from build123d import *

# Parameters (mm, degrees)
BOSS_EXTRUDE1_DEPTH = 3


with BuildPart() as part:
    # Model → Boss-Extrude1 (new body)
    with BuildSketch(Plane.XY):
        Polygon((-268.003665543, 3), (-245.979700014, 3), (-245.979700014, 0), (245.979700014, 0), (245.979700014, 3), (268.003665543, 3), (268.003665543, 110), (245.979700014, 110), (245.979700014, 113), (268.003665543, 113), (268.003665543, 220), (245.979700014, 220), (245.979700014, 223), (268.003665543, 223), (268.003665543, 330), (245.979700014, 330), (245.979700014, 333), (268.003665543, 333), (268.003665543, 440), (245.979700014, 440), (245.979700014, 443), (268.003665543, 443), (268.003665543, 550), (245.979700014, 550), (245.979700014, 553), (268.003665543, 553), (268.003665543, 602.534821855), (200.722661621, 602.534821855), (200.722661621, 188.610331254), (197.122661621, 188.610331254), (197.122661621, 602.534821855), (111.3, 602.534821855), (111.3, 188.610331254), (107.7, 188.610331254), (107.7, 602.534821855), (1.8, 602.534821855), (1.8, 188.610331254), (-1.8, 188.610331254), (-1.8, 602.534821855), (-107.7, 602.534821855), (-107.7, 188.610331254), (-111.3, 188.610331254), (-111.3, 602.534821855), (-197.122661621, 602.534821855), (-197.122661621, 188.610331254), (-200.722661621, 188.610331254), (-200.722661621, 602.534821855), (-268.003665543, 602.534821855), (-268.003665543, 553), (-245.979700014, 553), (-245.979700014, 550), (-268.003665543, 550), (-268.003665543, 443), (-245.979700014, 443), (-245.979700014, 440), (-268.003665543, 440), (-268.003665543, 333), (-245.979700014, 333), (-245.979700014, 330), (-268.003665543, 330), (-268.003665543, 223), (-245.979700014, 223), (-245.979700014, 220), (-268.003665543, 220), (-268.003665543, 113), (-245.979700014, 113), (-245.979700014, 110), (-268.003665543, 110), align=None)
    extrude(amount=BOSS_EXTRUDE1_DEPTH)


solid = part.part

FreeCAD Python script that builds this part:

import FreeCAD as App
import Part
import Sketcher

V = App.Vector
Q = App.Units.Quantity

doc = App.newDocument("Part")
body = doc.addObject("PartDesign::Body", "Body")

# Sketch on XY plane
sketch1 = body.newObject("Sketcher::SketchObject", "Sketch")
sketch1.AttachmentSupport = (doc.getObject("XY_Plane"), [""])
sketch1.MapMode = "FlatFace"
sketch1.addGeometry([
    Part.LineSegment(V(-268, 3, 0), V(-246, 3, 0)),  # 0
    Part.LineSegment(V(-246, 3, 0), V(-246, 0, 0)),  # 1
    Part.LineSegment(V(-246, 0, 0), V(246, 0, 0)),  # 2
    Part.LineSegment(V(246, 0, 0), V(246, 3, 0)),  # 3
    Part.LineSegment(V(246, 3, 0), V(268, 3, 0)),  # 4
    Part.LineSegment(V(268, 3, 0), V(268, 110, 0)),  # 5
    Part.LineSegment(V(268, 110, 0), V(246, 110, 0)),  # 6
    Part.LineSegment(V(246, 110, 0), V(246, 113, 0)),  # 7
    Part.LineSegment(V(246, 113, 0), V(268, 113, 0)),  # 8
    Part.LineSegment(V(268, 113, 0), V(268, 220, 0)),  # 9
    Part.LineSegment(V(268, 220, 0), V(246, 220, 0)),  # 10
    Part.LineSegment(V(246, 220, 0), V(246, 223, 0)),  # 11
    Part.LineSegment(V(246, 223, 0), V(268, 223, 0)),  # 12
    Part.LineSegment(V(268, 223, 0), V(268, 330, 0)),  # 13
    Part.LineSegment(V(268, 330, 0), V(246, 330, 0)),  # 14
    Part.LineSegment(V(246, 330, 0), V(246, 333, 0)),  # 15
    Part.LineSegment(V(246, 333, 0), V(268, 333, 0)),  # 16
    Part.LineSegment(V(268, 333, 0), V(268, 440, 0)),  # 17
    Part.LineSegment(V(268, 440, 0), V(246, 440, 0)),  # 18
    Part.LineSegment(V(246, 440, 0), V(246, 443, 0)),  # 19
    Part.LineSegment(V(246, 443, 0), V(268, 443, 0)),  # 20
    Part.LineSegment(V(268, 443, 0), V(268, 550, 0)),  # 21
    Part.LineSegment(V(268, 550, 0), V(246, 550, 0)),  # 22
    Part.LineSegment(V(246, 550, 0), V(246, 553, 0)),  # 23
    Part.LineSegment(V(246, 553, 0), V(268, 553, 0)),  # 24
    Part.LineSegment(V(268, 553, 0), V(268, 602.5, 0)),  # 25
    Part.LineSegment(V(268, 602.5, 0), V(200.7, 602.5, 0)),  # 26
    Part.LineSegment(V(200.7, 602.5, 0), V(200.7, 188.6, 0)),  # 27
    Part.LineSegment(V(200.7, 188.6, 0), V(197.1, 188.6, 0)),  # 28
    Part.LineSegment(V(197.1, 188.6, 0), V(197.1, 602.5, 0)),  # 29
    Part.LineSegment(V(197.1, 602.5, 0), V(111.3, 602.5, 0)),  # 30
    Part.LineSegment(V(111.3, 602.5, 0), V(111.3, 188.6, 0)),  # 31
    Part.LineSegment(V(111.3, 188.6, 0), V(107.7, 188.6, 0)),  # 32
    Part.LineSegment(V(107.7, 188.6, 0), V(107.7, 602.5, 0)),  # 33
    Part.LineSegment(V(107.7, 602.5, 0), V(1.8, 602.5, 0)),  # 34
    Part.LineSegment(V(1.8, 602.5, 0), V(1.8, 188.6, 0)),  # 35
    Part.LineSegment(V(1.8, 188.6, 0), V(-1.8, 188.6, 0)),  # 36
    Part.LineSegment(V(-1.8, 188.6, 0), V(-1.8, 602.5, 0)),  # 37
    Part.LineSegment(V(-1.8, 602.5, 0), V(-107.7, 602.5, 0)),  # 38
    Part.LineSegment(V(-107.7, 602.5, 0), V(-107.7, 188.6, 0)),  # 39
    Part.LineSegment(V(-107.7, 188.6, 0), V(-111.3, 188.6, 0)),  # 40
    Part.LineSegment(V(-111.3, 188.6, 0), V(-111.3, 602.5, 0)),  # 41
    Part.LineSegment(V(-111.3, 602.5, 0), V(-197.1, 602.5, 0)),  # 42
    Part.LineSegment(V(-197.1, 602.5, 0), V(-197.1, 188.6, 0)),  # 43
    Part.LineSegment(V(-197.1, 188.6, 0), V(-200.7, 188.6, 0)),  # 44
    Part.LineSegment(V(-200.7, 188.6, 0), V(-200.7, 602.5, 0)),  # 45
    Part.LineSegment(V(-200.7, 602.5, 0), V(-268, 602.5, 0)),  # 46
    Part.LineSegment(V(-268, 602.5, 0), V(-268, 553, 0)),  # 47
    Part.LineSegment(V(-268, 553, 0), V(-246, 553, 0)),  # 48
    Part.LineSegment(V(-246, 553, 0), V(-246, 550, 0)),  # 49
    Part.LineSegment(V(-246, 550, 0), V(-268, 550, 0)),  # 50
    Part.LineSegment(V(-268, 550, 0), V(-268, 443, 0)),  # 51
    Part.LineSegment(V(-268, 443, 0), V(-246, 443, 0)),  # 52
    Part.LineSegment(V(-246, 443, 0), V(-246, 440, 0)),  # 53
    Part.LineSegment(V(-246, 440, 0), V(-268, 440, 0)),  # 54
    Part.LineSegment(V(-268, 440, 0), V(-268, 333, 0)),  # 55
    Part.LineSegment(V(-268, 333, 0), V(-246, 333, 0)),  # 56
    Part.LineSegment(V(-246, 333, 0), V(-246, 330, 0)),  # 57
    Part.LineSegment(V(-246, 330, 0), V(-268, 330, 0)),  # 58
    Part.LineSegment(V(-268, 330, 0), V(-268, 223, 0)),  # 59
    Part.LineSegment(V(-268, 223, 0), V(-246, 223, 0)),  # 60
    Part.LineSegment(V(-246, 223, 0), V(-246, 220, 0)),  # 61
    Part.LineSegment(V(-246, 220, 0), V(-268, 220, 0)),  # 62
    Part.LineSegment(V(-268, 220, 0), V(-268, 113, 0)),  # 63
    Part.LineSegment(V(-268, 113, 0), V(-246, 113, 0)),  # 64
    Part.LineSegment(V(-246, 113, 0), V(-246, 110, 0)),  # 65
    Part.LineSegment(V(-246, 110, 0), V(-268, 110, 0)),  # 66
    Part.LineSegment(V(-268, 110, 0), V(-268, 3, 0)),  # 67
], False)
sketch1.addConstraint([
    Sketcher.Constraint("Coincident", 0, 2, 1, 1),
    Sketcher.Constraint("Coincident", 1, 2, 2, 1),
    Sketcher.Constraint("Coincident", 2, 2, 3, 1),
    Sketcher.Constraint("Coincident", 3, 2, 4, 1),
    Sketcher.Constraint("Coincident", 4, 2, 5, 1),
    Sketcher.Constraint("Coincident", 5, 2, 6, 1),
    Sketcher.Constraint("Coincident", 6, 2, 7, 1),
    Sketcher.Constraint("Coincident", 7, 2, 8, 1),
    Sketcher.Constraint("Coincident", 8, 2, 9, 1),
    Sketcher.Constraint("Coincident", 9, 2, 10, 1),
    Sketcher.Constraint("Coincident", 10, 2, 11, 1),
    Sketcher.Constraint("Coincident", 11, 2, 12, 1),
    Sketcher.Constraint("Coincident", 12, 2, 13, 1),
    Sketcher.Constraint("Coincident", 13, 2, 14, 1),
    Sketcher.Constraint("Coincident", 14, 2, 15, 1),
    Sketcher.Constraint("Coincident", 15, 2, 16, 1),
    Sketcher.Constraint("Coincident", 16, 2, 17, 1),
    Sketcher.Constraint("Coincident", 17, 2, 18, 1),
    Sketcher.Constraint("Coincident", 18, 2, 19, 1),
    Sketcher.Constraint("Coincident", 19, 2, 20, 1),
    Sketcher.Constraint("Coincident", 20, 2, 21, 1),
    Sketcher.Constraint("Coincident", 21, 2, 22, 1),
    Sketcher.Constraint("Coincident", 22, 2, 23, 1),
    Sketcher.Constraint("Coincident", 23, 2, 24, 1),
    Sketcher.Constraint("Coincident", 24, 2, 25, 1),
    Sketcher.Constraint("Coincident", 25, 2, 26, 1),
    Sketcher.Constraint("Coincident", 26, 2, 27, 1),
    Sketcher.Constraint("Coincident", 27, 2, 28, 1),
    Sketcher.Constraint("Coincident", 28, 2, 29, 1),
    Sketcher.Constraint("Coincident", 29, 2, 30, 1),
    Sketcher.Constraint("Coincident", 30, 2, 31, 1),
    Sketcher.Constraint("Coincident", 31, 2, 32, 1),
    Sketcher.Constraint("Coincident", 32, 2, 33, 1),
    Sketcher.Constraint("Coincident", 33, 2, 34, 1),
    Sketcher.Constraint("Coincident", 34, 2, 35, 1),
    Sketcher.Constraint("Coincident", 35, 2, 36, 1),
    Sketcher.Constraint("Coincident", 36, 2, 37, 1),
    Sketcher.Constraint("Coincident", 37, 2, 38, 1),
    Sketcher.Constraint("Coincident", 38, 2, 39, 1),
    Sketcher.Constraint("Coincident", 39, 2, 40, 1),
    Sketcher.Constraint("Coincident", 40, 2, 41, 1),
    Sketcher.Constraint("Coincident", 41, 2, 42, 1),
    Sketcher.Constraint("Coincident", 42, 2, 43, 1),
    Sketcher.Constraint("Coincident", 43, 2, 44, 1),
    Sketcher.Constraint("Coincident", 44, 2, 45, 1),
    Sketcher.Constraint("Coincident", 45, 2, 46, 1),
    Sketcher.Constraint("Coincident", 46, 2, 47, 1),
    Sketcher.Constraint("Coincident", 47, 2, 48, 1),
    Sketcher.Constraint("Coincident", 48, 2, 49, 1),
    Sketcher.Constraint("Coincident", 49, 2, 50, 1),
    Sketcher.Constraint("Coincident", 50, 2, 51, 1),
    Sketcher.Constraint("Coincident", 51, 2, 52, 1),
    Sketcher.Constraint("Coincident", 52, 2, 53, 1),
    Sketcher.Constraint("Coincident", 53, 2, 54, 1),
    Sketcher.Constraint("Coincident", 54, 2, 55, 1),
    Sketcher.Constraint("Coincident", 55, 2, 56, 1),
    Sketcher.Constraint("Coincident", 56, 2, 57, 1),
    Sketcher.Constraint("Coincident", 57, 2, 58, 1),
    Sketcher.Constraint("Coincident", 58, 2, 59, 1),
    Sketcher.Constraint("Coincident", 59, 2, 60, 1),
    Sketcher.Constraint("Coincident", 60, 2, 61, 1),
    Sketcher.Constraint("Coincident", 61, 2, 62, 1),
    Sketcher.Constraint("Coincident", 62, 2, 63, 1),
    Sketcher.Constraint("Coincident", 63, 2, 64, 1),
    Sketcher.Constraint("Coincident", 64, 2, 65, 1),
    Sketcher.Constraint("Coincident", 65, 2, 66, 1),
    Sketcher.Constraint("Coincident", 66, 2, 67, 1),
    Sketcher.Constraint("Coincident", 67, 2, 0, 1),
    Sketcher.Constraint("Horizontal", 0),
    Sketcher.Constraint("Vertical", 1),
    Sketcher.Constraint("Horizontal", 2),
    Sketcher.Constraint("Vertical", 3),
    Sketcher.Constraint("Horizontal", 4),
    Sketcher.Constraint("Vertical", 5),
    Sketcher.Constraint("Horizontal", 6),
    Sketcher.Constraint("Vertical", 7),
    Sketcher.Constraint("Horizontal", 8),
    Sketcher.Constraint("Vertical", 9),
    Sketcher.Constraint("Horizontal", 10),
    Sketcher.Constraint("Vertical", 11),
    Sketcher.Constraint("Horizontal", 12),
    Sketcher.Constraint("Vertical", 13),
    Sketcher.Constraint("Horizontal", 14),
    Sketcher.Constraint("Vertical", 15),
    Sketcher.Constraint("Horizontal", 16),
    Sketcher.Constraint("Vertical", 17),
    Sketcher.Constraint("Horizontal", 18),
    Sketcher.Constraint("Vertical", 19),
    Sketcher.Constraint("Horizontal", 20),
    Sketcher.Constraint("Vertical", 21),
    Sketcher.Constraint("Horizontal", 22),
    Sketcher.Constraint("Vertical", 23),
    Sketcher.Constraint("Horizontal", 24),
    Sketcher.Constraint("Vertical", 25),
    Sketcher.Constraint("Horizontal", 26),
    Sketcher.Constraint("Vertical", 27),
    Sketcher.Constraint("Horizontal", 28),
    Sketcher.Constraint("Vertical", 29),
    Sketcher.Constraint("Horizontal", 30),
    Sketcher.Constraint("Vertical", 31),
    Sketcher.Constraint("Horizontal", 32),
    Sketcher.Constraint("Vertical", 33),
    Sketcher.Constraint("Horizontal", 34),
    Sketcher.Constraint("Vertical", 35),
    Sketcher.Constraint("Horizontal", 36),
    Sketcher.Constraint("Vertical", 37),
    Sketcher.Constraint("Horizontal", 38),
    Sketcher.Constraint("Vertical", 39),
    Sketcher.Constraint("Horizontal", 40),
    Sketcher.Constraint("Vertical", 41),
    Sketcher.Constraint("Horizontal", 42),
    Sketcher.Constraint("Vertical", 43),
    Sketcher.Constraint("Horizontal", 44),
    Sketcher.Constraint("Vertical", 45),
    Sketcher.Constraint("Horizontal", 46),
    Sketcher.Constraint("Vertical", 47),
    Sketcher.Constraint("Horizontal", 48),
    Sketcher.Constraint("Vertical", 49),
    Sketcher.Constraint("Horizontal", 50),
    Sketcher.Constraint("Vertical", 51),
    Sketcher.Constraint("Horizontal", 52),
    Sketcher.Constraint("Vertical", 53),
    Sketcher.Constraint("Horizontal", 54),
    Sketcher.Constraint("Vertical", 55),
    Sketcher.Constraint("Horizontal", 56),
    Sketcher.Constraint("Vertical", 57),
    Sketcher.Constraint("Horizontal", 58),
    Sketcher.Constraint("Vertical", 59),
    Sketcher.Constraint("Horizontal", 60),
    Sketcher.Constraint("Vertical", 61),
    Sketcher.Constraint("Horizontal", 62),
    Sketcher.Constraint("Vertical", 63),
    Sketcher.Constraint("Horizontal", 64),
    Sketcher.Constraint("Vertical", 65),
    Sketcher.Constraint("Horizontal", 66),
    Sketcher.Constraint("Vertical", 67),
    Sketcher.Constraint("Symmetric", 1, 2, 2, 2, -1, 1),
    Sketcher.Constraint("Symmetric", 34, 2, 37, 2, -2),
    Sketcher.Constraint("Symmetric", 32, 2, 39, 2, -2),
    Sketcher.Constraint("Symmetric", 30, 2, 41, 2, -2),
    Sketcher.Constraint("Symmetric", 28, 2, 43, 2, -2),
    Sketcher.Constraint("Symmetric", 26, 2, 45, 2, -2),
    Sketcher.Constraint("Symmetric", 24, 2, 47, 2, -2),
    Sketcher.Constraint("Symmetric", 22, 2, 49, 2, -2),
    Sketcher.Constraint("Symmetric", 20, 2, 51, 2, -2),
    Sketcher.Constraint("Symmetric", 18, 2, 53, 2, -2),
    Sketcher.Constraint("Symmetric", 16, 2, 55, 2, -2),
    Sketcher.Constraint("Symmetric", 14, 2, 57, 2, -2),
    Sketcher.Constraint("Symmetric", 12, 2, 59, 2, -2),
    Sketcher.Constraint("Symmetric", 10, 2, 61, 2, -2),
    Sketcher.Constraint("Symmetric", 8, 2, 63, 2, -2),
    Sketcher.Constraint("Symmetric", 6, 2, 65, 2, -2),
    Sketcher.Constraint("Symmetric", 4, 2, 67, 2, -2),
    Sketcher.Constraint("Horizontal", 26, 2, 29, 2),
    Sketcher.Constraint("Horizontal", 28, 2, 31, 2),
    Sketcher.Constraint("Horizontal", 30, 2, 33, 2),
    Sketcher.Constraint("Horizontal", 32, 2, 35, 2),
    Sketcher.Constraint("Vertical", 3, 2, 6, 2),
    Sketcher.Constraint("Vertical", 5, 2, 8, 2),
    Sketcher.Constraint("Vertical", 7, 2, 10, 2),
    Sketcher.Constraint("Vertical", 9, 2, 12, 2),
    Sketcher.Constraint("Vertical", 11, 2, 14, 2),
    Sketcher.Constraint("Vertical", 13, 2, 16, 2),
    Sketcher.Constraint("Vertical", 15, 2, 18, 2),
    Sketcher.Constraint("Vertical", 17, 2, 20, 2),
    Sketcher.Constraint("Vertical", 19, 2, 22, 2),
    Sketcher.Constraint("Vertical", 21, 2, 24, 2),
    Sketcher.Constraint("Equal", 28, 32),
    Sketcher.Constraint("Equal", 32, 36),
    Sketcher.Constraint("Equal", 3, 7),
    Sketcher.Constraint("Equal", 5, 9),
    Sketcher.Constraint("Equal", 7, 11),
    Sketcher.Constraint("Equal", 9, 13),
    Sketcher.Constraint("Equal", 11, 15),
    Sketcher.Constraint("Equal", 13, 17),
    Sketcher.Constraint("Equal", 15, 19),
    Sketcher.Constraint("Equal", 17, 21),
    Sketcher.Constraint("Equal", 19, 23),
    Sketcher.Constraint("DistanceY", 1, 2, 1, 1, Q("3 mm")),
    Sketcher.Constraint("DistanceY", 5, 1, 5, 2, Q("107 mm")),
    Sketcher.Constraint("DistanceX", 28, 2, 28, 1, Q("3.6 mm")),
    Sketcher.Constraint("DistanceX", 34, 2, 34, 1, Q("105.9 mm")),
    Sketcher.Constraint("DistanceX", 2, 1, 2, 2, Q("491.9594 mm")),
    Sketcher.Constraint("DistanceX", 30, 2, 30, 1, Q("85.822662 mm")),
    Sketcher.Constraint("DistanceY", 25, 1, 25, 2, Q("49.534822 mm")),
    Sketcher.Constraint("DistanceY", 27, 2, 27, 1, Q("413.924491 mm")),
    Sketcher.Constraint("DistanceX", 0, 1, 0, 2, Q("22.023966 mm")),
])
pad1 = body.newObject("PartDesign::Pad", "Pad")
pad1.Profile = sketch1
pad1.Length = 3

doc.recompute()
